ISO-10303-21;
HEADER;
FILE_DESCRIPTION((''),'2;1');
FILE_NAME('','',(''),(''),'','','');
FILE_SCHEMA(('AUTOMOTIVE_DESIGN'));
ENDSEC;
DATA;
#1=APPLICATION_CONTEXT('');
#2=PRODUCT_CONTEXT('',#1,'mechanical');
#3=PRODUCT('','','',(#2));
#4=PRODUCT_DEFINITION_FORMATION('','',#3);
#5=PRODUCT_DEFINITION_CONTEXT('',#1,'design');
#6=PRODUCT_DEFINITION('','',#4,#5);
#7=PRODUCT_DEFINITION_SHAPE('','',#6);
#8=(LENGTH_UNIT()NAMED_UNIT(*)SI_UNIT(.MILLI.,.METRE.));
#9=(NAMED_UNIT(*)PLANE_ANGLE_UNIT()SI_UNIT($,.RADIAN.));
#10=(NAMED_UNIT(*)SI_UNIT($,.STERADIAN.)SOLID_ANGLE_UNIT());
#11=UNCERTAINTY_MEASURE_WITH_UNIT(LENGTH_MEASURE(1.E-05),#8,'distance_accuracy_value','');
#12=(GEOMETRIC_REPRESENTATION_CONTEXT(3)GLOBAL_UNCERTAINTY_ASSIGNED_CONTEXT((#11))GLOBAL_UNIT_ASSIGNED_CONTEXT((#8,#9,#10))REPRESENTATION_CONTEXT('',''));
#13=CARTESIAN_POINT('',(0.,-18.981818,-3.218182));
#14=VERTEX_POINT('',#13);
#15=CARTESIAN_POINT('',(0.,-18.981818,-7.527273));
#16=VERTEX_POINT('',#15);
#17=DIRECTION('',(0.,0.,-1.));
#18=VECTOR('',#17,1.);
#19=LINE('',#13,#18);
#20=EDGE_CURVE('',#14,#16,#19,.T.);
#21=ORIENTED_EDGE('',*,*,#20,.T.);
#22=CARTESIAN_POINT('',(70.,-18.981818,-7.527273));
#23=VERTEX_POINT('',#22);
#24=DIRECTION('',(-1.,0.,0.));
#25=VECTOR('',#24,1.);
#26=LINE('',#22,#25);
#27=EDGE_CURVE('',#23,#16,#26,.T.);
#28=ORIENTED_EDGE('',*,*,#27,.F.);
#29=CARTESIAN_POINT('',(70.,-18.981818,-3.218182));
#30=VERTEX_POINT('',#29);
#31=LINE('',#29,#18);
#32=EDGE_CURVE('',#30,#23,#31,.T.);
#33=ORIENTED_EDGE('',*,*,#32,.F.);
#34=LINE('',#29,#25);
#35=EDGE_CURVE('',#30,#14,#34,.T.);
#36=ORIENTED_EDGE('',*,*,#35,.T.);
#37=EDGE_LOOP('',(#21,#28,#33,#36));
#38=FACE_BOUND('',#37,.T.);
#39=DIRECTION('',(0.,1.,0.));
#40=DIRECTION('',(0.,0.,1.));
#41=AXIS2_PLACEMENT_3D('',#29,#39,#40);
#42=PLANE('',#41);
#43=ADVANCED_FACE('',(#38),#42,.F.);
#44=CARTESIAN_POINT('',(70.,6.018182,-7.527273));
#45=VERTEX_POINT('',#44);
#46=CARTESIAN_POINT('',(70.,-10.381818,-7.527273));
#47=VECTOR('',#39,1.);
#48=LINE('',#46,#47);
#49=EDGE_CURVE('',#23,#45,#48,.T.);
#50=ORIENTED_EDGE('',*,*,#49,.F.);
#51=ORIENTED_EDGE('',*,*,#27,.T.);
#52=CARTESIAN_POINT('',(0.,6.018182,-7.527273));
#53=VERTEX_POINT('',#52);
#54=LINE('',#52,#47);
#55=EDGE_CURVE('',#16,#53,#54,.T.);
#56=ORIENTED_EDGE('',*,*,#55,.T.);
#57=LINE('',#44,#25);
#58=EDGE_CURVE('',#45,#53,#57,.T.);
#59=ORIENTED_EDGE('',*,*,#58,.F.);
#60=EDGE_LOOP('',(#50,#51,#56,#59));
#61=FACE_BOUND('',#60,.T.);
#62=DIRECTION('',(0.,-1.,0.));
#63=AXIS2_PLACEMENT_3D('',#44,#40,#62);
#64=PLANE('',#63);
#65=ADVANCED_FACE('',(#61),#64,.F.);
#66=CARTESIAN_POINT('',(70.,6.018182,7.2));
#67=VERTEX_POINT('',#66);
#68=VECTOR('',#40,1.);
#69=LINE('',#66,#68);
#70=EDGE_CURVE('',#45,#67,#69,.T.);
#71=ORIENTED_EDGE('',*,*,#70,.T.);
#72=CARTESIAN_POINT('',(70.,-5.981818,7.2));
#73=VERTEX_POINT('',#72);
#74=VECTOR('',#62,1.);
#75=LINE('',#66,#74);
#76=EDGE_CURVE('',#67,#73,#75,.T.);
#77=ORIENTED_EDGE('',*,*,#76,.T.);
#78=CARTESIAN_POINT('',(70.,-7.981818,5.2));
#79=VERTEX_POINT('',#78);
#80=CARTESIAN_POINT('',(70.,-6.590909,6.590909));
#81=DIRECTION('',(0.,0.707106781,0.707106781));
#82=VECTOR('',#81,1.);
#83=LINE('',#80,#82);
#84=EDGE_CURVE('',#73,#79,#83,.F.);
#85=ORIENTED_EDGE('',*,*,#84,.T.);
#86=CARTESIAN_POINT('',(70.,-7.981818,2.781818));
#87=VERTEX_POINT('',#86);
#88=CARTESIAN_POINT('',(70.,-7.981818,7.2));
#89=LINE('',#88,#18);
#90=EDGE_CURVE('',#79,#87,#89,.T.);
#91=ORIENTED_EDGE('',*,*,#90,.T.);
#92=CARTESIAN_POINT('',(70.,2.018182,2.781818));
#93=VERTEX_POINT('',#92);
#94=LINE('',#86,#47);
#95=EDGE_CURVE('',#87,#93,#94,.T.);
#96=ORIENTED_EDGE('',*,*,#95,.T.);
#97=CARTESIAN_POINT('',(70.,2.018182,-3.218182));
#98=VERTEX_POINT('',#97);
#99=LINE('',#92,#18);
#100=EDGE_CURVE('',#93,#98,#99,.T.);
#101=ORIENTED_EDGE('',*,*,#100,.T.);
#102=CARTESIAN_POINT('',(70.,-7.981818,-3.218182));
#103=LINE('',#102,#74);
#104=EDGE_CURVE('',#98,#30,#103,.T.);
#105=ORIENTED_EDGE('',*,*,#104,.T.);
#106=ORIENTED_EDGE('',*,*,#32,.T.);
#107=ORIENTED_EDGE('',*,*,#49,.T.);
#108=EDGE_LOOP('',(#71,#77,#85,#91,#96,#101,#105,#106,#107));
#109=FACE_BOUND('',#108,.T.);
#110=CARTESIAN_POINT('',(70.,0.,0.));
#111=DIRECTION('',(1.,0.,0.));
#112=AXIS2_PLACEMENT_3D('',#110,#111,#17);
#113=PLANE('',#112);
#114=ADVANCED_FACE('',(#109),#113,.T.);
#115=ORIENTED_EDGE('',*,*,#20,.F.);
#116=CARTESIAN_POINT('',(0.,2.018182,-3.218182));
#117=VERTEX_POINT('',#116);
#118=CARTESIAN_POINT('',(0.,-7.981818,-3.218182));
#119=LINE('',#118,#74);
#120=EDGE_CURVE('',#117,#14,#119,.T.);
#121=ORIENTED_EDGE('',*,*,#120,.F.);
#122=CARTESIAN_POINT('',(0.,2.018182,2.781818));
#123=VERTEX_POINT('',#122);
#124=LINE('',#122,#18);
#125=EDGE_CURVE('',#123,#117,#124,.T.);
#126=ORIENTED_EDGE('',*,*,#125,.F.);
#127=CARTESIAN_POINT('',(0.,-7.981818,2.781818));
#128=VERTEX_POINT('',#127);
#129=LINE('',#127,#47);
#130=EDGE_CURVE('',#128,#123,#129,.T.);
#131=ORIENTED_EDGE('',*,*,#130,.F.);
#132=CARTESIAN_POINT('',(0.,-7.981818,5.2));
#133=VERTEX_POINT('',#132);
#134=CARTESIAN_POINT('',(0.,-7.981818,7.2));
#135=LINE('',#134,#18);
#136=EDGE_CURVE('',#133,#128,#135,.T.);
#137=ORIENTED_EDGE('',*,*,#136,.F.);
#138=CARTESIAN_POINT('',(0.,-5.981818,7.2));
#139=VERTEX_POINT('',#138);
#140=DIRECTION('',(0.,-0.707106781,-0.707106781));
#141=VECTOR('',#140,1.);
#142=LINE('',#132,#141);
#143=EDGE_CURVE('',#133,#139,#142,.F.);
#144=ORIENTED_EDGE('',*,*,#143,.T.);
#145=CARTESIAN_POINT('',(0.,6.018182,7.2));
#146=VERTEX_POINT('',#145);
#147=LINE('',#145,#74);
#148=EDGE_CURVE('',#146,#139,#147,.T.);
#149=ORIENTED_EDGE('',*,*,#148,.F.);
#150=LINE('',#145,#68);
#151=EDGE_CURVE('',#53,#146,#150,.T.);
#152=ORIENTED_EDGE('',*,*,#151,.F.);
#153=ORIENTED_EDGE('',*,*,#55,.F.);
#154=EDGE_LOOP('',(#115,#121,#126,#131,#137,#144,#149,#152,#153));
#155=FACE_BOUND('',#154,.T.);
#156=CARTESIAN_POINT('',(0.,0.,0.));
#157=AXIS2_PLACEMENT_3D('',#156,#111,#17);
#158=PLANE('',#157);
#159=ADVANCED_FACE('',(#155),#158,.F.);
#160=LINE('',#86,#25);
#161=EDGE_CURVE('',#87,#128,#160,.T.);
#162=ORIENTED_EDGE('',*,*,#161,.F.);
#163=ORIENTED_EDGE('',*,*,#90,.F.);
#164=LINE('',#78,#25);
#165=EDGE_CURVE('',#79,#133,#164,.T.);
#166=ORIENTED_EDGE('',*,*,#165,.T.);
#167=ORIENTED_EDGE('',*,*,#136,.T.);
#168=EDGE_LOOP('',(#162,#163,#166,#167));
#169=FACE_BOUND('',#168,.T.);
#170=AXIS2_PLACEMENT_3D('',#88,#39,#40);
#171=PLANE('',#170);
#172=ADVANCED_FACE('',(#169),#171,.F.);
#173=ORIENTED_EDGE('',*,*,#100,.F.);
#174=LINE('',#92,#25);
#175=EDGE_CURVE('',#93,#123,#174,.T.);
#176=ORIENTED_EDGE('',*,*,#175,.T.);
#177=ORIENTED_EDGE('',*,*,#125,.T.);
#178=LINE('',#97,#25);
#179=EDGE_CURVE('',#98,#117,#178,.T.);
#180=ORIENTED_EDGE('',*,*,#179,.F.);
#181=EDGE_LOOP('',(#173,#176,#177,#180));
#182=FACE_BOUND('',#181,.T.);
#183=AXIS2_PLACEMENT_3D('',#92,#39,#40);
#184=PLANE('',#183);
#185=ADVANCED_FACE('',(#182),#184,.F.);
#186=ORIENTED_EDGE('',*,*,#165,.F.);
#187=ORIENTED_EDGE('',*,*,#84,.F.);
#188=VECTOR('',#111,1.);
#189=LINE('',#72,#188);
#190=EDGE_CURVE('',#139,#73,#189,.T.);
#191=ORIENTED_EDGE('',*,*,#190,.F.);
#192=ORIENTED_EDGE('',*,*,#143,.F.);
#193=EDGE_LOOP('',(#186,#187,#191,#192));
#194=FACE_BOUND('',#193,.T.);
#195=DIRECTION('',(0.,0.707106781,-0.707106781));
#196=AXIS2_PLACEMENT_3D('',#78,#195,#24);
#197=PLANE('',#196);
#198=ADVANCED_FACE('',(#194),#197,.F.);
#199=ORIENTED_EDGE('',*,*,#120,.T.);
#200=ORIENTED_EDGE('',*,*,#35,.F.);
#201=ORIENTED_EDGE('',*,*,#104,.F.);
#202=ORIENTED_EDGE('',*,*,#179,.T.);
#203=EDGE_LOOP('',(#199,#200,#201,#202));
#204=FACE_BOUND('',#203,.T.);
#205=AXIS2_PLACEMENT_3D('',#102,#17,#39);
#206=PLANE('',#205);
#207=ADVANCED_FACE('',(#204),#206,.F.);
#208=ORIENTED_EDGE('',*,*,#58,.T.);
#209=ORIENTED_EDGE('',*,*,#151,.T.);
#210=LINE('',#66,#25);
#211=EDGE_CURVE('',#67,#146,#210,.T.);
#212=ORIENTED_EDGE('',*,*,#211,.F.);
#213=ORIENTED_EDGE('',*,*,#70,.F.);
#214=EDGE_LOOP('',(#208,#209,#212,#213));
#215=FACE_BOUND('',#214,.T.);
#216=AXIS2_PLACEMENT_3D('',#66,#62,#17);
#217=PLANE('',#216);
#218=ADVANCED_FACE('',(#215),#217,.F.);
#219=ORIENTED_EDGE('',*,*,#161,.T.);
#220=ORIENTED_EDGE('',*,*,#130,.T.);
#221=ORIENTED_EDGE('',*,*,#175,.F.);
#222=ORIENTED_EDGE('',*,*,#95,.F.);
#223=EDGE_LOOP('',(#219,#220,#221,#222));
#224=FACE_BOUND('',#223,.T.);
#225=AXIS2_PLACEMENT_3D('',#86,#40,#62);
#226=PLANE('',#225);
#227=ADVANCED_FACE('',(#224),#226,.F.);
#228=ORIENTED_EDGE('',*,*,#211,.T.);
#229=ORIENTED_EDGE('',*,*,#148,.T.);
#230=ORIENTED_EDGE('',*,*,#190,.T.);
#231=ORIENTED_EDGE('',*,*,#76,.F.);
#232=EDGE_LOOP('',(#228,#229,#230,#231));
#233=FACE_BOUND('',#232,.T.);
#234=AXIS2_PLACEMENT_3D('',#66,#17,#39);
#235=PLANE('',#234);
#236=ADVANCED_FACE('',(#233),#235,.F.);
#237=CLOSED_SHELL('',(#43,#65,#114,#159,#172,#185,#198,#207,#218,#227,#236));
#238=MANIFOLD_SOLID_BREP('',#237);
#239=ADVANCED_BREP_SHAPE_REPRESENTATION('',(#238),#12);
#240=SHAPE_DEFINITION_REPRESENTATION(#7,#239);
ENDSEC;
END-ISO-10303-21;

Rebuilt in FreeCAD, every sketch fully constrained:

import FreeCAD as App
import Part
import Sketcher

V = App.Vector
Q = App.Units.Quantity


def edges_at(feature, points):
    """Names of the edges that pass closest to the given points."""
    edges = feature.Shape.Edges
    near = lambda p: min(range(len(edges)), key=lambda i: edges[i].distToShape(Part.Vertex(*p))[0])
    return sorted({f"Edge{near(p) + 1}" for p in points})

doc = App.newDocument("Part")
body = doc.addObject("PartDesign::Body", "Body")

# Sketch on YZ plane
sketch1 = body.newObject("Sketcher::SketchObject", "Sketch")
sketch1.AttachmentSupport = (doc.getObject("YZ_Plane"), [""])
sketch1.MapMode = "FlatFace"
sketch1.addGeometry(Part.LineSegment(V(6, -7.5, 0), V(6, 7.2, 0)), False)
sketch1.addGeometry(Part.LineSegment(V(6, 7.2, 0), V(-8, 7.2, 0)), False)
sketch1.addGeometry(Part.LineSegment(V(-8, 7.2, 0), V(-8, 2.8, 0)), False)
sketch1.addGeometry(Part.LineSegment(V(-8, 2.8, 0), V(2, 2.8, 0)), False)
sketch1.addGeometry(Part.LineSegment(V(2, 2.8, 0), V(2, -3.2, 0)), False)
sketch1.addGeometry(Part.LineSegment(V(2, -3.2, 0), V(-19, -3.2, 0)), False)
sketch1.addGeometry(Part.LineSegment(V(-19, -3.2, 0), V(-19, -7.5, 0)), False)
sketch1.addGeometry(Part.LineSegment(V(-19, -7.5, 0), V(6, -7.5, 0)), False)
sketch1.addConstraint(Sketcher.Constraint("Coincident", 0, 2, 1, 1))
sketch1.addConstraint(Sketcher.Constraint("Coincident", 1, 2, 2, 1))
sketch1.addConstraint(Sketcher.Constraint("Coincident", 2, 2, 3, 1))
sketch1.addConstraint(Sketcher.Constraint("Coincident", 3, 2, 4, 1))
sketch1.addConstraint(Sketcher.Constraint("Coincident", 4, 2, 5, 1))
sketch1.addConstraint(Sketcher.Constraint("Coincident", 5, 2, 6, 1))
sketch1.addConstraint(Sketcher.Constraint("Coincident", 6, 2, 7, 1))
sketch1.addConstraint(Sketcher.Constraint("Coincident", 7, 2, 0, 1))
sketch1.addConstraint(Sketcher.Constraint("Vertical", 0))
sketch1.addConstraint(Sketcher.Constraint("Horizontal", 1))
sketch1.addConstraint(Sketcher.Constraint("Vertical", 2))
sketch1.addConstraint(Sketcher.Constraint("Horizontal", 3))
sketch1.addConstraint(Sketcher.Constraint("Vertical", 4))
sketch1.addConstraint(Sketcher.Constraint("Horizontal", 5))
sketch1.addConstraint(Sketcher.Constraint("Vertical", 6))
sketch1.addConstraint(Sketcher.Constraint("Horizontal", 7))
sketch1.addConstraint(Sketcher.Constraint("DistanceX", 1, 2, 1, 1, Q("14 mm")))
sketch1.addConstraint(Sketcher.Constraint("DistanceX", 3, 1, 3, 2, Q("10 mm")))
sketch1.addConstraint(Sketcher.Constraint("DistanceX", 5, 2, 5, 1, Q("21 mm")))
sketch1.addConstraint(Sketcher.Constraint("DistanceY", 4, 2, 4, 1, Q("6 mm")))
sketch1.addConstraint(Sketcher.Constraint("DistanceY", -1, 1, 0, 2, Q("7.2 mm")))
sketch1.addConstraint(Sketcher.Constraint("DistanceY", 2, 2, 2, 1, Q("4.418182 mm")))
sketch1.addConstraint(Sketcher.Constraint("DistanceY", 6, 2, 6, 1, Q("4.309091 mm")))
sketch1.addConstraint(Sketcher.Constraint("DistanceX", -1, 1, 0, 2, Q("6.018182 mm")))
pad1 = body.newObject("PartDesign::Pad", "Pad")
pad1.Profile = sketch1
pad1.Length = 70
doc.recompute()

chamfer = body.newObject("PartDesign::Chamfer", "Chamfer")
chamfer.Base = (pad1, edges_at(pad1, [(35, -7.982, 7.2)]))
chamfer.Size = 2

doc.recompute()
